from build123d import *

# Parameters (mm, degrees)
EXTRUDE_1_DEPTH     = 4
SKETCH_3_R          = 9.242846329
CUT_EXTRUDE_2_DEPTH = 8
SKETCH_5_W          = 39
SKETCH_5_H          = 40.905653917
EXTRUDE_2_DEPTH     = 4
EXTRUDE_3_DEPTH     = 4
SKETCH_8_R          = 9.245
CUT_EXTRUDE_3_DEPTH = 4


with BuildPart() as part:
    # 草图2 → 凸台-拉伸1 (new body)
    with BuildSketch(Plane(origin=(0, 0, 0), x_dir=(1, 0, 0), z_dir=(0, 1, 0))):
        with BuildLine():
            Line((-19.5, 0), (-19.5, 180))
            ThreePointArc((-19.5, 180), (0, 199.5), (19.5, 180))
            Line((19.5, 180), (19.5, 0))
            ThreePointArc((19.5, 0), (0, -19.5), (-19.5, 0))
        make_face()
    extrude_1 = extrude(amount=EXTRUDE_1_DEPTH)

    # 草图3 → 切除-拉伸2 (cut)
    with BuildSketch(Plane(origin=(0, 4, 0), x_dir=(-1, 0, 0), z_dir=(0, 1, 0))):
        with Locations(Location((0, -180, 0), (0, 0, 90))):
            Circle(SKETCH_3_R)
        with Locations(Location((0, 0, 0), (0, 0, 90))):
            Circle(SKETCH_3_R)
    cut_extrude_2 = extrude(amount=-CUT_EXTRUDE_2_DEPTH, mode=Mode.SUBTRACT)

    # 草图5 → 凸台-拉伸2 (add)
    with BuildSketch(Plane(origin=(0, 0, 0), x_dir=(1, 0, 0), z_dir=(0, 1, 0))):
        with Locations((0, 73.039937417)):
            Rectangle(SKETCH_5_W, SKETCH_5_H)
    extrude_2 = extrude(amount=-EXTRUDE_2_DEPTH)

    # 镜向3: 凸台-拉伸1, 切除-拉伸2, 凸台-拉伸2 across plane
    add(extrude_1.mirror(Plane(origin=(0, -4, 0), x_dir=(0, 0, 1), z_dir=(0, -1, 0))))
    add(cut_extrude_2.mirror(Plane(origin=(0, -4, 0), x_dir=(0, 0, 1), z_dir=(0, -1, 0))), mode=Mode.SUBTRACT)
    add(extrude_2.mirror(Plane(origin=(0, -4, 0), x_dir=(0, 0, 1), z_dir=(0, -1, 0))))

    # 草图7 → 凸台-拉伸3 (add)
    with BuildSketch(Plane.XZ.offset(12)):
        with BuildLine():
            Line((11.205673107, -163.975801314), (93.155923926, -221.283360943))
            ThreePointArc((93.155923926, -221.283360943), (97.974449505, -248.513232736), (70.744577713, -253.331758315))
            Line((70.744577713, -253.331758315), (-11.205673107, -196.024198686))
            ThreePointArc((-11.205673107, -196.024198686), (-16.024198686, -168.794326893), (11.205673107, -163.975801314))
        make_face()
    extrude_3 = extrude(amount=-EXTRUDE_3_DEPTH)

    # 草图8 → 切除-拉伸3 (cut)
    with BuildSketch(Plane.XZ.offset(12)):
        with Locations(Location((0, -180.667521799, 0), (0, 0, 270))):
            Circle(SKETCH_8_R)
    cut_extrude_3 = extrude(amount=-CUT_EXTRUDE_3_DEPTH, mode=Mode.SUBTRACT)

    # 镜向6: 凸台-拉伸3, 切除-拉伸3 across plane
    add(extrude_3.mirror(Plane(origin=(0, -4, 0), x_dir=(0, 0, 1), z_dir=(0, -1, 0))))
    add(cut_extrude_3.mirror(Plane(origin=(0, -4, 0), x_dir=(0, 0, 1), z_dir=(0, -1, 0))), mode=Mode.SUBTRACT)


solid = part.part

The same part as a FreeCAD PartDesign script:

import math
import FreeCAD as App
import Part
import Sketcher

V = App.Vector
Q = App.Units.Quantity

doc = App.newDocument("Part")
body = doc.addObject("PartDesign::Body", "Body")

# Sketch on XZ plane
sketch1 = body.newObject("Sketcher::SketchObject", "Sketch")
sketch1.AttachmentSupport = (doc.getObject("XZ_Plane"), [""])
sketch1.MapMode = "FlatFace"
sketch1.addGeometry(Part.LineSegment(V(-19.5, -180, 0), V(-19.5, 0, 0)), False)
sketch1.addGeometry(Part.ArcOfCircle(Part.Circle(V(0, 0, 0), V(0, 0, 1), 19.5), math.radians(0), math.radians(180)), False)
sketch1.addGeometry(Part.LineSegment(V(19.5, 0, 0), V(19.5, -180, 0)), False)
sketch1.addGeometry(Part.ArcOfCircle(Part.Circle(V(0, -180, 0), V(0, 0, 1), 19.5), math.radians(180), math.radians(360)), False)
sketch1.addConstraint(Sketcher.Constraint("Tangent", 0, 2, 1, 2))
sketch1.addConstraint(Sketcher.Constraint("Tangent", 1, 1, 2, 1))
sketch1.addConstraint(Sketcher.Constraint("Tangent", 2, 2, 3, 2))
sketch1.addConstraint(Sketcher.Constraint("Tangent", 3, 1, 0, 1))
sketch1.addConstraint(Sketcher.Constraint("Vertical", 0))
sketch1.addConstraint(Sketcher.Constraint("Vertical", 2))
sketch1.addConstraint(Sketcher.Constraint("Coincident", 1, 3, -1, 1))
sketch1.addConstraint(Sketcher.Constraint("Radius", 1, Q("19.5 mm")))
sketch1.addConstraint(Sketcher.Constraint("DistanceY", 0, 1, 0, 2, Q("180 mm")))
pad1 = body.newObject("PartDesign::Pad", "Pad")
pad1.Profile = sketch1
pad1.Length = 4
pad1.Reversed = True

# Sketch on XZ plane
sketch2 = body.newObject("Sketcher::SketchObject", "Sketch001")
sketch2.AttachmentSupport = (doc.getObject("XZ_Plane"), [""])
sketch2.MapMode = "FlatFace"
sketch2.AttachmentOffset = App.Placement(V(0, 0, -4), App.Rotation())
sketch2.addGeometry(Part.Circle(V(0, -180, 0), V(0, 0, 1), 9.242846), False)
sketch2.addGeometry(Part.Circle(V(0, 0, 0), V(0, 0, 1), 9.242846), False)
sketch2.addConstraint(Sketcher.Constraint("Coincident", 1, 3, -1, 1))
sketch2.addConstraint(Sketcher.Constraint("Equal", 0, 1))
sketch2.addConstraint(Sketcher.Constraint("PointOnObject", 0, 3, -2))
sketch2.addConstraint(Sketcher.Constraint("DistanceY", 0, 3, -1, 1, Q("180 mm")))
sketch2.addConstraint(Sketcher.Constraint("Diameter", 0, Q("18.485693 mm")))
pocket1 = body.newObject("PartDesign::Pocket", "Pocket")
pocket1.Profile = sketch2
pocket1.Length = 8
pocket1.Reversed = True

# Sketch on XZ plane
sketch3 = body.newObject("Sketcher::SketchObject", "Sketch002")
sketch3.AttachmentSupport = (doc.getObject("XZ_Plane"), [""])
sketch3.MapMode = "FlatFace"
sketch3.addGeometry(Part.LineSegment(V(-19.5, -93.492764, 0), V(-19.5, -52.58711, 0)), False)
sketch3.addGeometry(Part.LineSegment(V(-19.5, -52.58711, 0), V(19.5, -52.58711, 0)), False)
sketch3.addGeometry(Part.LineSegment(V(19.5, -52.58711, 0), V(19.5, -93.492764, 0)), False)
sketch3.addGeometry(Part.LineSegment(V(19.5, -93.492764, 0), V(-19.5, -93.492764, 0)), False)
sketch3.addConstraint(Sketcher.Constraint("Coincident", 0, 2, 1, 1))
sketch3.addConstraint(Sketcher.Constraint("Coincident", 1, 2, 2, 1))
sketch3.addConstraint(Sketcher.Constraint("Coincident", 2, 2, 3, 1))
sketch3.addConstraint(Sketcher.Constraint("Coincident", 3, 2, 0, 1))
sketch3.addConstraint(Sketcher.Constraint("Vertical", 0))
sketch3.addConstraint(Sketcher.Constraint("Horizontal", 1))
sketch3.addConstraint(Sketcher.Constraint("Vertical", 2))
sketch3.addConstraint(Sketcher.Constraint("Horizontal", 3))
sketch3.addConstraint(Sketcher.Constraint("DistanceX", 1, 1, 1, 2, Q("39 mm")))
sketch3.addConstraint(Sketcher.Constraint("DistanceX", 0, 2, -1, 1, Q("19.5 mm")))
sketch3.addConstraint(Sketcher.Constraint("DistanceY", 0, 1, 0, 2, Q("40.905654 mm")))
sketch3.addConstraint(Sketcher.Constraint("DistanceY", 0, 2, -1, 1, Q("52.58711 mm")))
pad2 = body.newObject("PartDesign::Pad", "Pad001")
pad2.Profile = sketch3
pad2.Length = 4
doc.recompute()

datumplane = body.newObject("PartDesign::Plane", "DatumPlane")
datumplane.AttachmentSupport = (doc.getObject("XZ_Plane"), [""])
datumplane.MapMode = "FlatFace"
datumplane.AttachmentOffset = App.Placement(V(0, 0, 4), App.Rotation())
mirrored = body.newObject("PartDesign::Mirrored", "Mirrored")
mirrored.Originals = [pad1, pocket1, pad2]
mirrored.MirrorPlane = (datumplane, [""])
body.Tip = mirrored

# Sketch on XZ plane
sketch4 = body.newObject("Sketcher::SketchObject", "Sketch003")
sketch4.AttachmentSupport = (doc.getObject("XZ_Plane"), [""])
sketch4.MapMode = "FlatFace"
sketch4.AttachmentOffset = App.Placement(V(0, 0, 12), App.Rotation())
sketch4.addGeometry(Part.LineSegment(V(93.155924, -221.283361, 0), V(11.205673, -163.975801, 0)), False)
sketch4.addGeometry(Part.ArcOfCircle(Part.Circle(V(0, -180, 0), V(0, 0, 1), 19.553569), math.radians(55.035024), math.radians(235.035024)), False)
sketch4.addGeometry(Part.LineSegment(V(-11.205673, -196.024199, 0), V(70.744578, -253.331758, 0)), False)
sketch4.addGeometry(Part.ArcOfCircle(Part.Circle(V(81.950251, -237.30756, 0), V(0, 0, 1), 19.553569), math.radians(-124.964976), math.radians(55.035024)), False)
sketch4.addConstraint(Sketcher.Constraint("Tangent", 0, 2, 1, 1))
sketch4.addConstraint(Sketcher.Constraint("Tangent", 1, 2, 2, 1))
sketch4.addConstraint(Sketcher.Constraint("Tangent", 2, 2, 3, 1))
sketch4.addConstraint(Sketcher.Constraint("Tangent", 3, 2, 0, 1))
sketch4.addConstraint(Sketcher.Constraint("Equal", 1, 3))
sketch4.addConstraint(Sketcher.Constraint("PointOnObject", 1, 3, -2))
sketch4.addConstraint(Sketcher.Constraint("Distance", 0, Q("100 mm")))
sketch4.addConstraint(Sketcher.Constraint("DistanceY", 1, 3, -1, 1, Q("180 mm")))
sketch4.addConstraint(Sketcher.Constraint("Radius", 1, Q("19.553569 mm")))
sketch4.addConstraint(Sketcher.Constraint("DistanceY", 0, 2, -1, 1, Q("163.975801 mm")))
pad3 = body.newObject("PartDesign::Pad", "Pad002")
pad3.Profile = sketch4
pad3.Length = 4
pad3.Reversed = True

# Sketch on XZ plane
sketch5 = body.newObject("Sketcher::SketchObject", "Sketch004")
sketch5.AttachmentSupport = (doc.getObject("XZ_Plane"), [""])
sketch5.MapMode = "FlatFace"
sketch5.AttachmentOffset = App.Placement(V(0, 0, 12), App.Rotation())
sketch5.addGeometry(Part.Circle(V(0, -180.667522, 0), V(0, 0, 1), 9.245), False)
sketch5.addConstraint(Sketcher.Constraint("PointOnObject", 0, 3, -2))
sketch5.addConstraint(Sketcher.Constraint("Diameter", 0, Q("18.49 mm")))
sketch5.addConstraint(Sketcher.Constraint("DistanceY", 0, 3, -1, 1, Q("180.667522 mm")))
pocket2 = body.newObject("PartDesign::Pocket", "Pocket001")
pocket2.Profile = sketch5
pocket2.Length = 4
doc.recompute()

datumplane2 = body.newObject("PartDesign::Plane", "DatumPlane001")
datumplane2.AttachmentSupport = (doc.getObject("XZ_Plane"), [""])
datumplane2.MapMode = "FlatFace"
datumplane2.AttachmentOffset = App.Placement(V(0, 0, 4), App.Rotation())
mirrored2 = body.newObject("PartDesign::Mirrored", "Mirrored001")
mirrored2.Originals = [pad3, pocket2]
mirrored2.MirrorPlane = (datumplane2, [""])
body.Tip = mirrored2

doc.recompute()
